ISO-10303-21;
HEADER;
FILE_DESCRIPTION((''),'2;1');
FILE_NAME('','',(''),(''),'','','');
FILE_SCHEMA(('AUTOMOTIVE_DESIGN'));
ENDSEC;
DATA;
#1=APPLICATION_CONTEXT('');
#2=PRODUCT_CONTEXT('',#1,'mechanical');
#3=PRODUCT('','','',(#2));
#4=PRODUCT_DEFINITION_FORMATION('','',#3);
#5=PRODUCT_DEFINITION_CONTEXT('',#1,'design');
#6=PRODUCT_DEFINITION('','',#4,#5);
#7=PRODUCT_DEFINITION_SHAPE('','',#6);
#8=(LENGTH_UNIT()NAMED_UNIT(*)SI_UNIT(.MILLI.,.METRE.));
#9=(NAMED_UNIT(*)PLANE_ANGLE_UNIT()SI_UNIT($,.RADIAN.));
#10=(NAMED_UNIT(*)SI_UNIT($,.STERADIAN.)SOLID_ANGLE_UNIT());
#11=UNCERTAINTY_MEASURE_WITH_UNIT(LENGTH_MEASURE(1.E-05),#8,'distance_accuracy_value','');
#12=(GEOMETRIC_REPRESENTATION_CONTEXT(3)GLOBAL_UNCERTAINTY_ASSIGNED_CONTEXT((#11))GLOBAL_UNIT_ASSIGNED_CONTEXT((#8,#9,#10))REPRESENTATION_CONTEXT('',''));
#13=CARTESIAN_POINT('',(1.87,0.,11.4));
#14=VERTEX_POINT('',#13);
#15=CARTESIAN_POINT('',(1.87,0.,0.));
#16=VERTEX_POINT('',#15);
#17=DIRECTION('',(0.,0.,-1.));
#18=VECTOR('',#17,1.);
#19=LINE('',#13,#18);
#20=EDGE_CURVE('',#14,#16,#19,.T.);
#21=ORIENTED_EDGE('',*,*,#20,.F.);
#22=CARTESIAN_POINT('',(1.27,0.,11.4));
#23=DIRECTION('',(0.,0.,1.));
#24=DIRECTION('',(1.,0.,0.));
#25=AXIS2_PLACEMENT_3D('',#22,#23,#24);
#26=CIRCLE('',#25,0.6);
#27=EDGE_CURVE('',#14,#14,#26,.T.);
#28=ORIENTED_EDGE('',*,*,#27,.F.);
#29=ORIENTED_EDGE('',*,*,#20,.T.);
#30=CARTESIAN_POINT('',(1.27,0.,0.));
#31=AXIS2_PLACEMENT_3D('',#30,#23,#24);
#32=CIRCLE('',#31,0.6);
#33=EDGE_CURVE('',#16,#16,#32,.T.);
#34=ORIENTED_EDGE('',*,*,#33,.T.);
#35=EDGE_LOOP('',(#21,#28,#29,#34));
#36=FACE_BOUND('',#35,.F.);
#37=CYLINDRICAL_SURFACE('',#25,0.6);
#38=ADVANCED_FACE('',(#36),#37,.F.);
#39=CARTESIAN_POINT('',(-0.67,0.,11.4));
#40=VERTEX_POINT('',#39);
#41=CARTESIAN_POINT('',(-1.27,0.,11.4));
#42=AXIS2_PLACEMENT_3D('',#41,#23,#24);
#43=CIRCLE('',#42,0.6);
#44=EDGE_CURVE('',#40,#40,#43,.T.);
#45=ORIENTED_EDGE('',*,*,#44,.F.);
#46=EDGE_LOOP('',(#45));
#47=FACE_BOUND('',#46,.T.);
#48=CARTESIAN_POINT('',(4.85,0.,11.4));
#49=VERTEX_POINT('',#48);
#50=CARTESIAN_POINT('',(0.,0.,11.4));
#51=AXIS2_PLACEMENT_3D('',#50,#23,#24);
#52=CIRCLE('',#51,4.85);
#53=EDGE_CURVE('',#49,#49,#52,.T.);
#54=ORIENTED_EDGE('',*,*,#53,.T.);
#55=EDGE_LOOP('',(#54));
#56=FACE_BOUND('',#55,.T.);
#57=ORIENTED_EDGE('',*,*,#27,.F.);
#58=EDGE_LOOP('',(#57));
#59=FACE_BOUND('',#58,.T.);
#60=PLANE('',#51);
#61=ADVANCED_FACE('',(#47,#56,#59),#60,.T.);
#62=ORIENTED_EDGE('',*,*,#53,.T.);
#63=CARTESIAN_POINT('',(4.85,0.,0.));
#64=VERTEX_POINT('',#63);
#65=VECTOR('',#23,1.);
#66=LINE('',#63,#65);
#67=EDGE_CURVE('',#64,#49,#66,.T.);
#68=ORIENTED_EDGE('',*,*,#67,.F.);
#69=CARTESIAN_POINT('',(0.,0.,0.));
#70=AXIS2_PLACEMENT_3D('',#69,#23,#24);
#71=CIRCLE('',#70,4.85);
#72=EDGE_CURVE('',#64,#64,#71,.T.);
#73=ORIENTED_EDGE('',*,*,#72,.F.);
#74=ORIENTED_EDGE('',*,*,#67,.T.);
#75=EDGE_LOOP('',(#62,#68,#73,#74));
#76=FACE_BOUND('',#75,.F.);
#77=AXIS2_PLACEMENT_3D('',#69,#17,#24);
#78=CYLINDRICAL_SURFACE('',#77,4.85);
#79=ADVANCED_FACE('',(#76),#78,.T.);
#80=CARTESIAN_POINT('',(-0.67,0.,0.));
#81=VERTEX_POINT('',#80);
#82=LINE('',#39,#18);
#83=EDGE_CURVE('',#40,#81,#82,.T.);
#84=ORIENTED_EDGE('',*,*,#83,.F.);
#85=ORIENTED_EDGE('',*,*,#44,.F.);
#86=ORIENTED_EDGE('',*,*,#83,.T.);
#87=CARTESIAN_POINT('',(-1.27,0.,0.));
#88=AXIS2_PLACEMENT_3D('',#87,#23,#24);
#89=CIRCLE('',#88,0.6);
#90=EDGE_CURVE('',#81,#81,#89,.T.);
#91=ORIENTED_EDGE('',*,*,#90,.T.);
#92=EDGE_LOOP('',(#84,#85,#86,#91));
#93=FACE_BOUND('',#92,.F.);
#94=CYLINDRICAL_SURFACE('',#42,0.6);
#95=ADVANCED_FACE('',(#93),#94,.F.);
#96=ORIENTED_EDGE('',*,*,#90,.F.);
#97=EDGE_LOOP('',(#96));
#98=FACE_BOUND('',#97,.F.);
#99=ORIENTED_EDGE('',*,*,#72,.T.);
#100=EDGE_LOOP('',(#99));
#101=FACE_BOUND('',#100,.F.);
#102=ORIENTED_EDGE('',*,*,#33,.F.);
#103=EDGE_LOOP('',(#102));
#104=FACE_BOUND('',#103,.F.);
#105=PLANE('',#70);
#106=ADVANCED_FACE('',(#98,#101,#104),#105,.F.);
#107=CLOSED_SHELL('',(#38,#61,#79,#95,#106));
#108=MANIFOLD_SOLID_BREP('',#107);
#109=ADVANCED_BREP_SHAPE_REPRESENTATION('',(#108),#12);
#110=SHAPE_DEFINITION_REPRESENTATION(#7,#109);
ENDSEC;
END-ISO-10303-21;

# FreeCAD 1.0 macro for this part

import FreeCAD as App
import Part
import Sketcher
from FreeCAD import Vector

doc = App.newDocument("Part")
body = doc.addObject("PartDesign::Body", "Body")

# Sketch on XY plane
sketch1 = body.newObject("Sketcher::SketchObject", "Sketch")
sketch1.AttachmentSupport = (doc.getObject("XY_Plane"), [""])
sketch1.MapMode = "FlatFace"
sketch1.addGeometry(Part.Circle(Vector(0, 0, 0), Vector(0, 0, 1), 4.8), False)
sketch1.addConstraint([
    Sketcher.Constraint("Coincident", 0, 3, -1, 1),
    Sketcher.Constraint("Diameter", 0, 9.7),
])
pad1 = body.newObject("PartDesign::Pad", "Pad")
pad1.Profile = sketch1
pad1.Length = 11.4

# Sketch on XY plane
sketch2 = body.newObject("Sketcher::SketchObject", "Sketch001")
sketch2.AttachmentSupport = (doc.getObject("XY_Plane"), [""])
sketch2.MapMode = "FlatFace"
sketch2.AttachmentOffset = App.Placement(Vector(0, 0, 11.4), App.Rotation())
sketch2.addGeometry([
    Part.Circle(Vector(-1.3, 0, 0), Vector(0, 0, 1), 0.6),
    Part.Circle(Vector(1.3, 0, 0), Vector(0, 0, 1), 0.6),
], False)
sketch2.addConstraint([
    Sketcher.Constraint("Equal", 0, 1),
    Sketcher.Constraint("Symmetric", 0, 3, 1, 3, -1, 1),
    Sketcher.Constraint("PointOnObject", 0, 3, -1),
    Sketcher.Constraint("Diameter", 0, 1.2),
    Sketcher.Constraint("DistanceX", 0, 3, -1, 1, 1.27),
])
pocket1 = body.newObject("PartDesign::Pocket", "Pocket")
pocket1.Profile = sketch2
pocket1.Type = "ThroughAll"

doc.recompute()
